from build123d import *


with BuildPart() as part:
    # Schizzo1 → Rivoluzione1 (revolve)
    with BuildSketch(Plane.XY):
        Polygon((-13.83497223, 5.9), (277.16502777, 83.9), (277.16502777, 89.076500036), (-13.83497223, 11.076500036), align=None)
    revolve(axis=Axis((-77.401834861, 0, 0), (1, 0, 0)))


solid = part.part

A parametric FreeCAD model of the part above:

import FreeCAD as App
import Part
import Sketcher
from FreeCAD import Vector


def add_polygon(sketch, points):
    """Adds a closed chain of lines whose ends are joined by coincident constraints."""
    first, n = sketch.GeometryCount, len(points)
    for a, b in zip(points, points[1:] + points[:1]):
        sketch.addGeometry(Part.LineSegment(App.Vector(*a, 0), App.Vector(*b, 0)), False)
    for i in range(n):
        sketch.addConstraint(Sketcher.Constraint("Coincident", first + i, 2, first + (i + 1) % n, 1))

doc = App.newDocument("Part")
params = doc.addObject("Spreadsheet::Sheet", "Params")
for row, (alias, value) in enumerate([
    ("revolution_angle", "360 deg"),
], start=1):
    params.set(f"A{row}", alias)
    params.set(f"B{row}", "=" + value)
    params.setAlias(f"B{row}", alias)

body = doc.addObject("PartDesign::Body", "Body")

# Sketch on XY plane
sketch1 = doc.addObject("Sketcher::SketchObject", "Sketch")
body.addObject(sketch1)
sketch1.AttachmentSupport = (doc.XY_Plane, [""])
sketch1.MapMode = "FlatFace"
add_polygon(sketch1, [(-14, 6), (277, 84), (277, 89), (-14, 11)])  # lines 0-3
sketch1.addConstraint([
    Sketcher.Constraint("Vertical", 1),
    Sketcher.Constraint("Vertical", 3),
    Sketcher.Constraint("Parallel", 0, 2),
    Sketcher.Constraint("DistanceX", 2, 2, 0, 2, 291.0),
    Sketcher.Constraint("DistanceY", 2, 2, 1, 2, 78.0),
    Sketcher.Constraint("DistanceY", -1, 1, 0, 2, 83.9),
    Sketcher.Constraint("DistanceY", 1, 1, 1, 2, 5.1765),
    Sketcher.Constraint("DistanceX", -1, 1, 0, 2, 277.165028),
])
revolution = doc.addObject("PartDesign::Revolution", "Revolution")
body.addObject(revolution)
revolution.Profile = sketch1
revolution.ReferenceAxis = (sketch1, ["H_Axis"])
revolution.setExpression("Angle", "Params.revolution_angle")

doc.recompute()
